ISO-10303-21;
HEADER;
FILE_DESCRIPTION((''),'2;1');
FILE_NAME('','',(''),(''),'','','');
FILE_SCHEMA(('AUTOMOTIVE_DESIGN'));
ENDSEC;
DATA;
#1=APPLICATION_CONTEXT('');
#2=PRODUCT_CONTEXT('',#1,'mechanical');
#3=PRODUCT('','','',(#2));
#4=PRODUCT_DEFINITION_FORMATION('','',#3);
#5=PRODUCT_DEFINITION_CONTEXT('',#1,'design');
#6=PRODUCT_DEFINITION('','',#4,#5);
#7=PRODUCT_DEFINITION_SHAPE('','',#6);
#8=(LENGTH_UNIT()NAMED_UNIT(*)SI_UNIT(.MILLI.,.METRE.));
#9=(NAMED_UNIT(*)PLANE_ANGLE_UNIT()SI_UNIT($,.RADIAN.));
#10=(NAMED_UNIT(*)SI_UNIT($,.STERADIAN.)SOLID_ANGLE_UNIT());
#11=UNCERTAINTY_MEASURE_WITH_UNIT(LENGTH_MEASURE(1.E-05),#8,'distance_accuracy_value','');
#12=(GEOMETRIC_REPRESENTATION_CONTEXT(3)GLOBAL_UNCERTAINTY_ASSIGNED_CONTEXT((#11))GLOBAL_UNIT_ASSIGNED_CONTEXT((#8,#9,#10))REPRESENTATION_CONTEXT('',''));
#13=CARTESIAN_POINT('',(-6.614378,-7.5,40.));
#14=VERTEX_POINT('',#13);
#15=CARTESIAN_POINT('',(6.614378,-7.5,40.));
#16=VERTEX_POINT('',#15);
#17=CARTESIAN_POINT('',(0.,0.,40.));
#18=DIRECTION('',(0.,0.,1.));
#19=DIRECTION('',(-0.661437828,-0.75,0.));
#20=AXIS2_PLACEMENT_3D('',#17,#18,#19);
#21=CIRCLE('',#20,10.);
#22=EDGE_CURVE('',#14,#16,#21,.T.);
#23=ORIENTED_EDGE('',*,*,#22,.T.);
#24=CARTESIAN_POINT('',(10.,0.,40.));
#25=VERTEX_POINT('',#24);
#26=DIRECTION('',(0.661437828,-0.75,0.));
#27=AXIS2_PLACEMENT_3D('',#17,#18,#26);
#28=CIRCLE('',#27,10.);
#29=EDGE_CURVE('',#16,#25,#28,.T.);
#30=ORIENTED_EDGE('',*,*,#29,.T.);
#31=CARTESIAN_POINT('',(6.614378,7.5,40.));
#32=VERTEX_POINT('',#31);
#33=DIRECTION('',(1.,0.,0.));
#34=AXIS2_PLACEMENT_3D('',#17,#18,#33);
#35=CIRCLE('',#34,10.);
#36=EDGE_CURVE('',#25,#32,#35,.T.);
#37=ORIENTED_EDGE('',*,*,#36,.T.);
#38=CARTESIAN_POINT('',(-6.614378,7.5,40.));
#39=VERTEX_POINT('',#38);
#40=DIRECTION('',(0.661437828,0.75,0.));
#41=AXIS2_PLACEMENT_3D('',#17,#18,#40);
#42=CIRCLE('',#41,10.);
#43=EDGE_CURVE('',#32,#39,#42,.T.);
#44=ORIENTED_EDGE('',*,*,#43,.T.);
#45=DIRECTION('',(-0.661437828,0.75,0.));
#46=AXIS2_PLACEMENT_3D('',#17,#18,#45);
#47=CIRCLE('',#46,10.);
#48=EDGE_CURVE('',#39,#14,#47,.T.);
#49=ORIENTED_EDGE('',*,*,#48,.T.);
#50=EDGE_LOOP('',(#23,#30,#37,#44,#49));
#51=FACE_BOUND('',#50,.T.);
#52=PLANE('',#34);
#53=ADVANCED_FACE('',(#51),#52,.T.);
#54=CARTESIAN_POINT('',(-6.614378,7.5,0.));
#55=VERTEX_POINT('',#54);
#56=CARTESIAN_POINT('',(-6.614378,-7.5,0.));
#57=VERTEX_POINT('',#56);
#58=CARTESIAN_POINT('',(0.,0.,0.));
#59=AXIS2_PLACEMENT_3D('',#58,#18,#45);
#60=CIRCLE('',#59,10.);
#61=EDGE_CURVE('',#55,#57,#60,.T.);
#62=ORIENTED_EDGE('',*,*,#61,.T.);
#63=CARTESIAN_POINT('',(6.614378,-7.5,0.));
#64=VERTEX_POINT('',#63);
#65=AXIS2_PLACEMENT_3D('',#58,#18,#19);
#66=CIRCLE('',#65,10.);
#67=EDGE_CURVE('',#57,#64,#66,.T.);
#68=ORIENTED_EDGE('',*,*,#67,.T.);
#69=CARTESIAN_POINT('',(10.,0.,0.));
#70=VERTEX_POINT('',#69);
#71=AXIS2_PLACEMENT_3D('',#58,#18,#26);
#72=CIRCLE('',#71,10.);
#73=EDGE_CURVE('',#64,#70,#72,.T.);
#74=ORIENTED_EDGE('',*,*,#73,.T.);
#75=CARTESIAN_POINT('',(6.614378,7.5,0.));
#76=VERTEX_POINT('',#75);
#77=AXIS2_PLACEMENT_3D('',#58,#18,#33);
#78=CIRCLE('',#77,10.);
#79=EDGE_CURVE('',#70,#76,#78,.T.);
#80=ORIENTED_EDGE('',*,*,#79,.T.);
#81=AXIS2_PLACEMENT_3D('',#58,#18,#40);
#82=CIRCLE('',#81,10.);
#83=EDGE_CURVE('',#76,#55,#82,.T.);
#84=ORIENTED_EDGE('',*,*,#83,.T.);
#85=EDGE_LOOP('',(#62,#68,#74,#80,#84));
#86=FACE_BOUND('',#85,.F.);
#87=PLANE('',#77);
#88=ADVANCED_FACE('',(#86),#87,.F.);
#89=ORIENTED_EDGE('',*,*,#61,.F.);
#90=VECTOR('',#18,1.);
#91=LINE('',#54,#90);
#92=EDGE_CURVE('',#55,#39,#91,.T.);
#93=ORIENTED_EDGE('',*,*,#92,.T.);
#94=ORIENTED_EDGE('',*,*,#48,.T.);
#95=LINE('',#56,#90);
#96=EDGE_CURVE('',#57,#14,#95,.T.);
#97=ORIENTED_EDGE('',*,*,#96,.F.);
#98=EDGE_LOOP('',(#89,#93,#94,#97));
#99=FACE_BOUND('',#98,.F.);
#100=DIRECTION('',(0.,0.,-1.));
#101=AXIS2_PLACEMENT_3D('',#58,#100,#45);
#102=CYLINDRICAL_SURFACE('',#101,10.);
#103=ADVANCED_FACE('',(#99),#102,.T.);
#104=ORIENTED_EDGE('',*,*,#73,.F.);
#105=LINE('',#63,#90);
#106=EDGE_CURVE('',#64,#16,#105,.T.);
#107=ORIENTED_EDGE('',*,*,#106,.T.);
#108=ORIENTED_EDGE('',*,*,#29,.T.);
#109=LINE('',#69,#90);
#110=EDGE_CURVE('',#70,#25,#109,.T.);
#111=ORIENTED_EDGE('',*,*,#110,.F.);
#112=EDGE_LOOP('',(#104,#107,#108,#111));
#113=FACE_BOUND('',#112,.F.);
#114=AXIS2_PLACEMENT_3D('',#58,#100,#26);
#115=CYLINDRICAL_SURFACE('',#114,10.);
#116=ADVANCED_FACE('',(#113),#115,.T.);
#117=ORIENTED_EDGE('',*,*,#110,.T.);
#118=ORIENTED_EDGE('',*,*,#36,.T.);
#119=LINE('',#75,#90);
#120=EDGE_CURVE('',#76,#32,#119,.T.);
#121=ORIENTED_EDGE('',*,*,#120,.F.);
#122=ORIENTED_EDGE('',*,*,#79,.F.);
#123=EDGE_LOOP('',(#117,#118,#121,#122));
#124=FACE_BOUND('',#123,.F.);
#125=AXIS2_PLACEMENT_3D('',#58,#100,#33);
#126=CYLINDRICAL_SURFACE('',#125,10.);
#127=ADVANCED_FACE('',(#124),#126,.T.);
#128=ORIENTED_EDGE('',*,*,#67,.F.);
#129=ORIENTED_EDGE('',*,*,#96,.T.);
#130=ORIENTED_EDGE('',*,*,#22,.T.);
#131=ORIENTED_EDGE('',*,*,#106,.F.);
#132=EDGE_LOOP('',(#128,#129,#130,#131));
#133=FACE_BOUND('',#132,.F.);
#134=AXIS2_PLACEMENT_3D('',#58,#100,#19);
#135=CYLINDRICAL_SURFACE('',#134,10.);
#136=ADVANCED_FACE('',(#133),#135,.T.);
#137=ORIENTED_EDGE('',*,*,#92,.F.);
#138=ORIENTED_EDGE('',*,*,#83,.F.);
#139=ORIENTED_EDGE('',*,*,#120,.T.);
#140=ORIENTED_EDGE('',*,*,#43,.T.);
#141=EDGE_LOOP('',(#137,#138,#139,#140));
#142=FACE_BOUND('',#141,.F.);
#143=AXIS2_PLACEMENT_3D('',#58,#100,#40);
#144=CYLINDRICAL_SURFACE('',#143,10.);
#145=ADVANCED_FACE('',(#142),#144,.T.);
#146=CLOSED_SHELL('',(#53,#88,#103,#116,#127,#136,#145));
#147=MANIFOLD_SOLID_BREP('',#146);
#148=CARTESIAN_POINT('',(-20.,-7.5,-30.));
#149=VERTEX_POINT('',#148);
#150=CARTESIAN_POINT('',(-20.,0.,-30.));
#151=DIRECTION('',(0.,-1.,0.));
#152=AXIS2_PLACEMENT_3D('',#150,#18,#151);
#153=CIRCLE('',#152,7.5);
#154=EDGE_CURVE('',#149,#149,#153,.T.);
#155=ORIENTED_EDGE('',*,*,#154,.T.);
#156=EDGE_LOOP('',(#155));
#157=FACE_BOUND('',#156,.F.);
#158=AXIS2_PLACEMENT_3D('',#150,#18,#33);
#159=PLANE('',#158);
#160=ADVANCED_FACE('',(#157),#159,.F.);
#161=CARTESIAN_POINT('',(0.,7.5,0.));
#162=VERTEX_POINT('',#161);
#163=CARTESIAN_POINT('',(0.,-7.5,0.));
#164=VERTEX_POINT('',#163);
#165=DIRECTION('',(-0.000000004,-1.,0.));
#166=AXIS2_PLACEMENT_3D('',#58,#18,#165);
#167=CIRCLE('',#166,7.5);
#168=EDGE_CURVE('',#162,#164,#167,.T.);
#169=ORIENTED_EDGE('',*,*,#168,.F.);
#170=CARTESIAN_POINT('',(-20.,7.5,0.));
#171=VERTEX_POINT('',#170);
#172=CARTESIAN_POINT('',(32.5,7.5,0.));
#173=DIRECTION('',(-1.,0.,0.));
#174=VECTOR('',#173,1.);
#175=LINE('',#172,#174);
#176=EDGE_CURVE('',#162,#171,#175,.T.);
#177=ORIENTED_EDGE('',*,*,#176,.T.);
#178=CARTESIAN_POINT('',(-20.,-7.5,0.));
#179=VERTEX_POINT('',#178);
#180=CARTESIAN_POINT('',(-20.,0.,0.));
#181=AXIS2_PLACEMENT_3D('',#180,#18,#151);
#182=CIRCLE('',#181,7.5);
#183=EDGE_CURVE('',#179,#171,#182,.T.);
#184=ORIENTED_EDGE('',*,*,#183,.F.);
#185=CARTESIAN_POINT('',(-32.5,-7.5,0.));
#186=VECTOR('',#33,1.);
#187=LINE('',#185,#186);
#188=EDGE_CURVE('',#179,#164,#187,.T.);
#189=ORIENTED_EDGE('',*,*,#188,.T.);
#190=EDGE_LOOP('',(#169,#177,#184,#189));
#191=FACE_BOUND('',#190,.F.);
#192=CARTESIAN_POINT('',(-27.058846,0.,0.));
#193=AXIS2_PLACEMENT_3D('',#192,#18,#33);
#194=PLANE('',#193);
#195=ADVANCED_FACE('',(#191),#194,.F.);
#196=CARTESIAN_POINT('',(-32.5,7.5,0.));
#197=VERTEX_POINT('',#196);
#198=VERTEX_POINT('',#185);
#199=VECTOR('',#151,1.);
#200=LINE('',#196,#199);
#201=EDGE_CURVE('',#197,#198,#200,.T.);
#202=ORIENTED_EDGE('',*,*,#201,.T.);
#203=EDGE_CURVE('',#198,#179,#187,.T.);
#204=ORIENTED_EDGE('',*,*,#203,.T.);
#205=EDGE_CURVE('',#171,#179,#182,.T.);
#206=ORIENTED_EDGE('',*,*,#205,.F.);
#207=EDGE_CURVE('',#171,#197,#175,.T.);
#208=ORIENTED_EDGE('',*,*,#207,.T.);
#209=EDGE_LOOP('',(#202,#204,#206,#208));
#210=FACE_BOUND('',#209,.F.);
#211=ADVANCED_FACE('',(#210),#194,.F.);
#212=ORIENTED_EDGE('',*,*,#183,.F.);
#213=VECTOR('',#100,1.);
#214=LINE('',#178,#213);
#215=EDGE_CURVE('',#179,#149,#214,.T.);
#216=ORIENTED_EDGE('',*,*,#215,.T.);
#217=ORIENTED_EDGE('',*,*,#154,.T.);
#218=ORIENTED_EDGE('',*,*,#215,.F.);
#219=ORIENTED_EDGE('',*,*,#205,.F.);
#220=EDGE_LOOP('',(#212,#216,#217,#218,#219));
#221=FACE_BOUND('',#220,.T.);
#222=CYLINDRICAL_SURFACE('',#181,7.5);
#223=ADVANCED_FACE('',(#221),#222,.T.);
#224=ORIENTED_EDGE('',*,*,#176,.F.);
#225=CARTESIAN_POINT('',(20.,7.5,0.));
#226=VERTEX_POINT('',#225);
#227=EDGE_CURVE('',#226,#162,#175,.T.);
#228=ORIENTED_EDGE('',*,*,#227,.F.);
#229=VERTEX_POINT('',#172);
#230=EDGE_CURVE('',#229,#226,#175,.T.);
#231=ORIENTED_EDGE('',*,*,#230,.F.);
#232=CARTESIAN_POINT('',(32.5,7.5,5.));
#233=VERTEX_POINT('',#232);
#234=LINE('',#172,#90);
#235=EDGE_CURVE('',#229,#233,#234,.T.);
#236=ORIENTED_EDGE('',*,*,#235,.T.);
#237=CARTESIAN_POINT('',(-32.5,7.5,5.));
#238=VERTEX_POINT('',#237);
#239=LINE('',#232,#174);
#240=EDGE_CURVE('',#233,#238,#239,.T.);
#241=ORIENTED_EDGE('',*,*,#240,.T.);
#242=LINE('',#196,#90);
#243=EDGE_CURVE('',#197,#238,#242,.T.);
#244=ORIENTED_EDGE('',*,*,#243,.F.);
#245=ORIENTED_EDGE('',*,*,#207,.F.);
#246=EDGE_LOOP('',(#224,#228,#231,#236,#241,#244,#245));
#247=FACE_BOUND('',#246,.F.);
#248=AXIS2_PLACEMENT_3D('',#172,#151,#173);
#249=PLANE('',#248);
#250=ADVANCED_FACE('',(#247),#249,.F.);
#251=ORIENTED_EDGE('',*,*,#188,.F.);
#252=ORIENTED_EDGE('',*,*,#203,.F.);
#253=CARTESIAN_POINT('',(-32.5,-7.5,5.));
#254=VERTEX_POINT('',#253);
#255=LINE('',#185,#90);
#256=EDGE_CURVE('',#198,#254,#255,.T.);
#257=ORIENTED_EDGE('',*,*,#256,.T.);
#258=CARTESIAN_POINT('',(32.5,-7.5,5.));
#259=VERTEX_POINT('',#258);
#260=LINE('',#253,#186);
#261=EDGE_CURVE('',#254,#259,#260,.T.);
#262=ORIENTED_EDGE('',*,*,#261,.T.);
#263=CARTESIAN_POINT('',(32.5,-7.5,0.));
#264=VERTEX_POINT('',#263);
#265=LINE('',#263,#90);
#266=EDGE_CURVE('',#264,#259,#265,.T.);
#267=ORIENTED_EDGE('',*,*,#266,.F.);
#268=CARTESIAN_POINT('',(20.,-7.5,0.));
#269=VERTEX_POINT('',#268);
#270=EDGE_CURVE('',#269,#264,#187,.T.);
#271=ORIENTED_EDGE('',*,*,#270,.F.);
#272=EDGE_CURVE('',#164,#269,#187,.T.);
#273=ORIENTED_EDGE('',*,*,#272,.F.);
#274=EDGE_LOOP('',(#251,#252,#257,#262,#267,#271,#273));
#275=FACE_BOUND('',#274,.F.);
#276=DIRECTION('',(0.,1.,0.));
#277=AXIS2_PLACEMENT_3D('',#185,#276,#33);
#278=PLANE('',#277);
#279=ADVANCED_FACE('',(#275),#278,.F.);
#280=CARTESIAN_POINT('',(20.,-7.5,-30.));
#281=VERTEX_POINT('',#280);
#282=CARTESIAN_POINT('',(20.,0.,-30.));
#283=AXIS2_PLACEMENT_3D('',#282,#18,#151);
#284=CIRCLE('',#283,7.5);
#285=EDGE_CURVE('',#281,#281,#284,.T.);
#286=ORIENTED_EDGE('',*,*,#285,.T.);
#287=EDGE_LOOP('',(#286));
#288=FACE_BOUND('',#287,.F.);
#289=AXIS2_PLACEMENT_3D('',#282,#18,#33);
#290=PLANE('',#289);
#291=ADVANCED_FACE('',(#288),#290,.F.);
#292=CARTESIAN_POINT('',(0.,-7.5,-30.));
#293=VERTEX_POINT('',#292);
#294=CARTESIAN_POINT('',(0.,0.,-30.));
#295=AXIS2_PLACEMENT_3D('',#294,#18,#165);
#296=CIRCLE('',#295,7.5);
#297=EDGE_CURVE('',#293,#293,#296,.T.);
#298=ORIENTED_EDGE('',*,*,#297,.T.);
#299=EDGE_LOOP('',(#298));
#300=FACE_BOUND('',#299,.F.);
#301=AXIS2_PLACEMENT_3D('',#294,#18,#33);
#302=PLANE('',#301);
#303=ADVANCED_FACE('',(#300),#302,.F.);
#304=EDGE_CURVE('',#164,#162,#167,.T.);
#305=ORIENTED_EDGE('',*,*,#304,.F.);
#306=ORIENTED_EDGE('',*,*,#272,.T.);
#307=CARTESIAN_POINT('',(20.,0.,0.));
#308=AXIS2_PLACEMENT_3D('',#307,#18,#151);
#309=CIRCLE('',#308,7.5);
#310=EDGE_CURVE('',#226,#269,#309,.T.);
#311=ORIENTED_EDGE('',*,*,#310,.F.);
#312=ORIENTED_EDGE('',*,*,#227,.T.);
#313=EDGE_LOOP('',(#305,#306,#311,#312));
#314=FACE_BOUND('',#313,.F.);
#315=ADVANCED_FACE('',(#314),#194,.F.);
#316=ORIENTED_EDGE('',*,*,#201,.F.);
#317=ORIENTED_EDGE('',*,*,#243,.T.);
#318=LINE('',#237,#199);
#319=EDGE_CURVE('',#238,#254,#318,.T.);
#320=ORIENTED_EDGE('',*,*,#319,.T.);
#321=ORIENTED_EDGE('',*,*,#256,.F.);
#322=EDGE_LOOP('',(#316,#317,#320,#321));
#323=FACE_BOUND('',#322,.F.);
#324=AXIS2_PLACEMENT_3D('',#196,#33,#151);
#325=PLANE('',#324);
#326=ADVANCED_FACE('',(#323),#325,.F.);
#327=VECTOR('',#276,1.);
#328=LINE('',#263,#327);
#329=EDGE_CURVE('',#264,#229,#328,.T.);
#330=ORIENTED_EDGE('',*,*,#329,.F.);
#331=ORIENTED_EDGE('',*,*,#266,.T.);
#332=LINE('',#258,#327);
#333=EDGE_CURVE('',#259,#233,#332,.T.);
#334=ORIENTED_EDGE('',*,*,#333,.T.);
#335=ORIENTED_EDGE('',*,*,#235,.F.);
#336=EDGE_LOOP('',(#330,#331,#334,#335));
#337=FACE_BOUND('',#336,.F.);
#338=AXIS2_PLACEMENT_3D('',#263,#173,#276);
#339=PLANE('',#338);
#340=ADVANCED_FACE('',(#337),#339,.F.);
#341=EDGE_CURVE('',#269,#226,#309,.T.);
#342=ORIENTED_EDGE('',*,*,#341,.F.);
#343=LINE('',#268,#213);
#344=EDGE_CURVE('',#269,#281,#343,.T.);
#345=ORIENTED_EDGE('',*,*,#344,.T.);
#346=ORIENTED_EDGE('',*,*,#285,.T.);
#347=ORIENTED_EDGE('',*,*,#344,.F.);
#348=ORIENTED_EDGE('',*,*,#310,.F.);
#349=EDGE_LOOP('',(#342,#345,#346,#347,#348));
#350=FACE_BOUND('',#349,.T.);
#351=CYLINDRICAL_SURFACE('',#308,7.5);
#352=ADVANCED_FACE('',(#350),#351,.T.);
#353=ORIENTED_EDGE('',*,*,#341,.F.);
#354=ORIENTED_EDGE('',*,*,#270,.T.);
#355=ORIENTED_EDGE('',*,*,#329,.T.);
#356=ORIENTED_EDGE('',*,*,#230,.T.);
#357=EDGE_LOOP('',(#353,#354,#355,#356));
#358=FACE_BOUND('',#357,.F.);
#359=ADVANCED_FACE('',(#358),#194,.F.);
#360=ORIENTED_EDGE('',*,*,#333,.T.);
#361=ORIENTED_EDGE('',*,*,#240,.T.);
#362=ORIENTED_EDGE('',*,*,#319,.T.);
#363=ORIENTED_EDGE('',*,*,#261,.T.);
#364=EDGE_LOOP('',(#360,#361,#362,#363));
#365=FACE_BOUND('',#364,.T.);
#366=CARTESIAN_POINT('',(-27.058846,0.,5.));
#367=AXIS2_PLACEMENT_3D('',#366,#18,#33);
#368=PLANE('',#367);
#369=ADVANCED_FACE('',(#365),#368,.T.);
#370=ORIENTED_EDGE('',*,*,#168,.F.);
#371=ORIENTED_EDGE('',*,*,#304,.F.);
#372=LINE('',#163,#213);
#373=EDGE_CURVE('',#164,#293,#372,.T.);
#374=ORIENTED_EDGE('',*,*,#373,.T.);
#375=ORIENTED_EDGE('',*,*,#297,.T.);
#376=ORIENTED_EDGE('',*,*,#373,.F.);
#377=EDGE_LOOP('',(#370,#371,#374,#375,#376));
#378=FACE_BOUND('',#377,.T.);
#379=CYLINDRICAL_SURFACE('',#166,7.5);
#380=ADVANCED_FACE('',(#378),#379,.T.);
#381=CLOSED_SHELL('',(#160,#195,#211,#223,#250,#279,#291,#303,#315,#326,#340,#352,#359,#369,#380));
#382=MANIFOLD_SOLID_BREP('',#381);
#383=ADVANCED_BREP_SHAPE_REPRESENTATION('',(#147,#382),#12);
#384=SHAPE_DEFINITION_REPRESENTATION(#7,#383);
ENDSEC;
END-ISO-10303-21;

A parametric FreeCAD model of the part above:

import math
import FreeCAD as App
import Part
import Sketcher
Q = App.Units.Quantity


def add_polygon(sketch, points):
    """Adds a closed chain of lines whose ends are joined by coincident constraints."""
    first, n = sketch.GeometryCount, len(points)
    for a, b in zip(points, points[1:] + points[:1]):
        sketch.addGeometry(Part.LineSegment(App.Vector(*a, 0), App.Vector(*b, 0)), False)
    for i in range(n):
        sketch.addConstraint(Sketcher.Constraint("Coincident", first + i, 2, first + (i + 1) % n, 1))

doc = App.newDocument("Part")
body = doc.addObject("PartDesign::Body", "Body")

# Sketch on XY plane
sketch1 = doc.addObject("Sketcher::SketchObject", "Sketch")
body.addObject(sketch1)
sketch1.AttachmentSupport = (doc.XY_Plane, [""])
sketch1.MapMode = "FlatFace"
add_polygon(sketch1, [(-32, 8), (-32, -8), (32, -8), (32, 8)])  # lines 0-3
sketch1.addConstraint([
    Sketcher.Constraint("Vertical", 0),
    Sketcher.Constraint("Horizontal", 1),
    Sketcher.Constraint("Vertical", 2),
    Sketcher.Constraint("Horizontal", 3),
    Sketcher.Constraint("Symmetric", 0, 2, 2, 2, -1, 1),
    Sketcher.Constraint("DistanceX", 1, 1, 1, 2, Q("65 mm")),
    Sketcher.Constraint("DistanceY", 0, 2, 0, 1, Q("15 mm")),
])
pad1 = doc.addObject("PartDesign::Pad", "Pad")
body.addObject(pad1)
pad1.Profile = sketch1
pad1.Length = 5

# Sketch on XY plane
sketch2 = doc.addObject("Sketcher::SketchObject", "Sketch001")
body.addObject(sketch2)
sketch2.AttachmentSupport = (doc.XY_Plane, [""])
sketch2.MapMode = "FlatFace"
sketch2.addGeometry([
    Part.Circle(App.Vector(-20, 0, 0), App.Vector(0, 0, 1), 8),
    Part.Circle(App.Vector(0, 0, 0), App.Vector(0, 0, 1), 8),
    Part.Circle(App.Vector(20, 0, 0), App.Vector(0, 0, 1), 8),
], False)
sketch2.addConstraint([
    Sketcher.Constraint("Coincident", 1, 3, -1, 1),
    Sketcher.Constraint("Equal", 0, 1),
    Sketcher.Constraint("Equal", 1, 2),
    Sketcher.Constraint("Symmetric", 0, 3, 2, 3, -1, 1),
    Sketcher.Constraint("PointOnObject", 0, 3, -1),
    Sketcher.Constraint("Diameter", 0, Q("15 mm")),
    Sketcher.Constraint("DistanceX", 0, 3, -1, 1, Q("20 mm")),
])
pad2 = doc.addObject("PartDesign::Pad", "Pad001")
body.addObject(pad2)
pad2.Profile = sketch2
pad2.Length = 30
pad2.Reversed = True
body2 = doc.addObject("PartDesign::Body", "Body001")

# Sketch on XY plane
sketch3 = doc.addObject("Sketcher::SketchObject", "Sketch002")
body2.addObject(sketch3)
sketch3.AttachmentSupport = (doc.getObject("XY_Plane001"), [""])
sketch3.MapMode = "FlatFace"
sketch3.addGeometry([
    Part.ArcOfCircle(Part.Circle(App.Vector(0, 0, 0), App.Vector(0, 0, 1), 10), math.radians(-49), math.radians(0)),  # 0
    Part.ArcOfCircle(Part.Circle(App.Vector(0, 0, 0), App.Vector(0, 0, 1), 10), math.radians(0), math.radians(49)),  # 1
    Part.ArcOfCircle(Part.Circle(App.Vector(0, 0, 0), App.Vector(0, 0, 1), 10), math.radians(49), math.radians(131)),  # 2
    Part.ArcOfCircle(Part.Circle(App.Vector(0, 0, 0), App.Vector(0, 0, 1), 10), math.radians(131), math.radians(229)),  # 3
    Part.ArcOfCircle(Part.Circle(App.Vector(0, 0, 0), App.Vector(0, 0, 1), 10), math.radians(-131), math.radians(-49)),  # 4
], False)
sketch3.addConstraint([
    Sketcher.Constraint("Tangent", 0, 2, 1, 1),
    Sketcher.Constraint("Tangent", 1, 2, 2, 1),
    Sketcher.Constraint("Tangent", 2, 2, 3, 1),
    Sketcher.Constraint("Tangent", 3, 2, 4, 1),
    Sketcher.Constraint("Tangent", 4, 2, 0, 1),
    Sketcher.Constraint("Coincident", 0, 3, -1, 1),
    Sketcher.Constraint("Coincident", 2, 3, -1, 1),
    Sketcher.Constraint("PointOnObject", 0, 2, -1),
    Sketcher.Constraint("Horizontal", 1, 2, 2, 2),
    Sketcher.Constraint("Horizontal", 3, 2, 4, 2),
    Sketcher.Constraint("Vertical", 2, 2, 3, 2),
    Sketcher.Constraint("Radius", 0, Q("10 mm")),
    Sketcher.Constraint("DistanceY", -1, 1, 1, 2, Q("7.5 mm")),
])
pad3 = doc.addObject("PartDesign::Pad", "Pad002")
body2.addObject(pad3)
pad3.Profile = sketch3
pad3.Length = 40

doc.recompute()
